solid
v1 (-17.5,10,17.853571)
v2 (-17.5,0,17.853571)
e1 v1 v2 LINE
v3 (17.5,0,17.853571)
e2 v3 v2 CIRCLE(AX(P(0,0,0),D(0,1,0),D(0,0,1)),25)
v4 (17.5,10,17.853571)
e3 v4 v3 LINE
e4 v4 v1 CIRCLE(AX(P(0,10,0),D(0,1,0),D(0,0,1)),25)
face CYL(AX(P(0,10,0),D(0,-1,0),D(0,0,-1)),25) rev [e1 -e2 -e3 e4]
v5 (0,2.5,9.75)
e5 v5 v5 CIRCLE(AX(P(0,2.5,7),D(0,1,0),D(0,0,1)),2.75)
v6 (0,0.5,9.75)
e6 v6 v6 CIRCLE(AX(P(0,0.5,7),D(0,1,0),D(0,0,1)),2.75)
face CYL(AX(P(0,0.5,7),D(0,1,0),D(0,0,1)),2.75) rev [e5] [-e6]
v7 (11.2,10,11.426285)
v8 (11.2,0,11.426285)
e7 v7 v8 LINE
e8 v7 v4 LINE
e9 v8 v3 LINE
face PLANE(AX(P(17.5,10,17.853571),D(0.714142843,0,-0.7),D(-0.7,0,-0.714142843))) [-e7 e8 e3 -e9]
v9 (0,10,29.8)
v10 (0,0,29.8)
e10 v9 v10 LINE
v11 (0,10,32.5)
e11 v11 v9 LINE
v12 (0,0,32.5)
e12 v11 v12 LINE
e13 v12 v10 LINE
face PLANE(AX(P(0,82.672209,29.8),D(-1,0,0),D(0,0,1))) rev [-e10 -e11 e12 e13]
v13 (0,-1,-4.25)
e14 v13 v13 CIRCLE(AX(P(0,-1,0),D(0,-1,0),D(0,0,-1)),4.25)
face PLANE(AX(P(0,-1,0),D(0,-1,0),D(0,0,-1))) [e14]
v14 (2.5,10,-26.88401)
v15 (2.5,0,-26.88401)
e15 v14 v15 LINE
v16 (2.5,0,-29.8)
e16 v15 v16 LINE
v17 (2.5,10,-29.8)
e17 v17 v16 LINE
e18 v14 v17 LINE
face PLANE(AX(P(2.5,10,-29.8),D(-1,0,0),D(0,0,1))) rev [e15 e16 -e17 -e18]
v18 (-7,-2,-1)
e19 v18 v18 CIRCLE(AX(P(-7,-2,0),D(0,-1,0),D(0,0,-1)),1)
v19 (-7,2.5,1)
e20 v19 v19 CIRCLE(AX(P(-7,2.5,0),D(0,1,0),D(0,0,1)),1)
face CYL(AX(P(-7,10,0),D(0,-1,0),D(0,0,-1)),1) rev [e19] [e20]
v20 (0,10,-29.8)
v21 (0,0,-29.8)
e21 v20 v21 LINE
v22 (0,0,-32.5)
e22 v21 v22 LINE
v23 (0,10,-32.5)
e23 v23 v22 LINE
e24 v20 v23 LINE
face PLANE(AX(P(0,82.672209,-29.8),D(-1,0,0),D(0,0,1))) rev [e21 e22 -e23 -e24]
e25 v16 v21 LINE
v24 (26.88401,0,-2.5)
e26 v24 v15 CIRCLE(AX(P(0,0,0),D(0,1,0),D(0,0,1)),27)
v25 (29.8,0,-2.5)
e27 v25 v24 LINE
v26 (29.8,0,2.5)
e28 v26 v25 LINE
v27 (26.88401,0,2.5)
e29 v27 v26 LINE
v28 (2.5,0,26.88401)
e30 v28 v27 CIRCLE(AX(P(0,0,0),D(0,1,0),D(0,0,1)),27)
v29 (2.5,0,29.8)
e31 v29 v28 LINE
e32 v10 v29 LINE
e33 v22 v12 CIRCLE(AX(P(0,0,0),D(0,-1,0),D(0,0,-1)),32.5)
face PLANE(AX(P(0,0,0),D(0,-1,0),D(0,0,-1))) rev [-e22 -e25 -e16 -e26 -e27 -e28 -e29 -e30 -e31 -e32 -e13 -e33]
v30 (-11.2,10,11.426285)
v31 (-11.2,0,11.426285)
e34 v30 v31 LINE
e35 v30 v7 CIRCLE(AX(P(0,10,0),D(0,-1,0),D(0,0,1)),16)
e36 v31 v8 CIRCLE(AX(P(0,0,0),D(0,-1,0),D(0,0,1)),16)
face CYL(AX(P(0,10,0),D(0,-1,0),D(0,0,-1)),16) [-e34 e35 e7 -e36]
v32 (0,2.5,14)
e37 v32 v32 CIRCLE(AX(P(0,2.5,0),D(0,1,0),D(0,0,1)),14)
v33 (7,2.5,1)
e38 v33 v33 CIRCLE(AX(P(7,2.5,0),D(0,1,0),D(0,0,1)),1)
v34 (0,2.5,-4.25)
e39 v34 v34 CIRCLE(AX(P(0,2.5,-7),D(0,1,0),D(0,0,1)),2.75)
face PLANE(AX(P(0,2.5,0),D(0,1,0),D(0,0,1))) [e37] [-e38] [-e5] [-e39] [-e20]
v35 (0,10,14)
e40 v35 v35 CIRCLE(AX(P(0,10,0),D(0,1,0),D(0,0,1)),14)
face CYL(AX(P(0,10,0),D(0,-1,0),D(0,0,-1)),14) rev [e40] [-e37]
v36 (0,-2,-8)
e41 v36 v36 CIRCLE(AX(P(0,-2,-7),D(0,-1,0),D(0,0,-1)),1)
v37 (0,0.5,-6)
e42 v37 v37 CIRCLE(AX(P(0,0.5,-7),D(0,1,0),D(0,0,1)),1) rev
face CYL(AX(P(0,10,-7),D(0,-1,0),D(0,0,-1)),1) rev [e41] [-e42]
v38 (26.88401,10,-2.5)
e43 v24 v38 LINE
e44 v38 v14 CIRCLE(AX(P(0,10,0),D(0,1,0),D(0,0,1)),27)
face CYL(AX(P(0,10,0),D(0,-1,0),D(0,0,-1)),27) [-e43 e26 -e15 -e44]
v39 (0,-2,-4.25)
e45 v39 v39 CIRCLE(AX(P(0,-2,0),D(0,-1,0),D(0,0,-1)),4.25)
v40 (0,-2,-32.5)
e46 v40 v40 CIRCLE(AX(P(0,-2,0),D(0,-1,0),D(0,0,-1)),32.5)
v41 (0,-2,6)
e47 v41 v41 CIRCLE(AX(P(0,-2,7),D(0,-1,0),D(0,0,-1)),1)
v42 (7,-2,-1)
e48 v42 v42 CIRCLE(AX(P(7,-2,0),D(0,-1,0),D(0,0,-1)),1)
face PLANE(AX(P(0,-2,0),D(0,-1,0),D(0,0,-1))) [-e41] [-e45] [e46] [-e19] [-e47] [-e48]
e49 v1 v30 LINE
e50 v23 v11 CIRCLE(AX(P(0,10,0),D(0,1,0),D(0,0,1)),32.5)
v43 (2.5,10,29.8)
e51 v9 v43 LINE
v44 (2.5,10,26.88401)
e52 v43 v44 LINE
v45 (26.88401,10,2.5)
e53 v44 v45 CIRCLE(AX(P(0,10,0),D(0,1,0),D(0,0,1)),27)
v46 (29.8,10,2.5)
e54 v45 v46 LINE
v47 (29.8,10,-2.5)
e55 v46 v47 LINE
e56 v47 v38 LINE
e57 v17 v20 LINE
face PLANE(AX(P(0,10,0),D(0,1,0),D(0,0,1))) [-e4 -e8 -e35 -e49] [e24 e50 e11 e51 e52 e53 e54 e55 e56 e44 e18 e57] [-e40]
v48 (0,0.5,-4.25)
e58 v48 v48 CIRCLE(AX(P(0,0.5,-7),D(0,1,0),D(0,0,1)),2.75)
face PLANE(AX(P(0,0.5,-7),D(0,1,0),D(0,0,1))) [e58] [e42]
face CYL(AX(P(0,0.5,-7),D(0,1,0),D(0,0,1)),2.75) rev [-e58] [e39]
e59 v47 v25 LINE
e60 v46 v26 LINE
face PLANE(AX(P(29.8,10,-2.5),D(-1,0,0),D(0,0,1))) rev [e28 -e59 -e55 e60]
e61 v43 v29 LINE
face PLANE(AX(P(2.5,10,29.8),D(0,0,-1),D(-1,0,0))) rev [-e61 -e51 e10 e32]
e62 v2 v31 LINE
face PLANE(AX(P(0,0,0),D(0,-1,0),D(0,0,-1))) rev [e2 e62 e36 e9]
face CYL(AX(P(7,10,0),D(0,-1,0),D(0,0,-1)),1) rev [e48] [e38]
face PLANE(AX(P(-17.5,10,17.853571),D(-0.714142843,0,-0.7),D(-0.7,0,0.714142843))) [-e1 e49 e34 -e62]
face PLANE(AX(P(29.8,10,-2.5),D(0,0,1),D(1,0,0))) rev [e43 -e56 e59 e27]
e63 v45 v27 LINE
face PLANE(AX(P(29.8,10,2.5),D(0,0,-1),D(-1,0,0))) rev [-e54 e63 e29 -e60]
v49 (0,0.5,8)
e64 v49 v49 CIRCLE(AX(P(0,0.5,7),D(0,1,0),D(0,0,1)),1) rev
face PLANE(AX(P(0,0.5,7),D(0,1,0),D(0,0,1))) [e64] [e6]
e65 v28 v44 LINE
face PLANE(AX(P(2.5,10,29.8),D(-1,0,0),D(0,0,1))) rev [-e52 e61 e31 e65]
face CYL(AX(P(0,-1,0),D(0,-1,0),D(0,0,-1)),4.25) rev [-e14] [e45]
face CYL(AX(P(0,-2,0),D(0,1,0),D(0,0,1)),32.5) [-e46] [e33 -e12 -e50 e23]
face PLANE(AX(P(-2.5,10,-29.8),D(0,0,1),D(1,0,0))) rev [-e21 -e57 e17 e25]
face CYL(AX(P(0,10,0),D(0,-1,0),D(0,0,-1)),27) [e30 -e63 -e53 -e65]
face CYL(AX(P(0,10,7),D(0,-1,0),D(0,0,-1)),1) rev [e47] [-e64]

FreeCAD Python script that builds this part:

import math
import FreeCAD as App
import Part
import Sketcher

V = App.Vector

doc = App.newDocument("Part")
body = doc.addObject("PartDesign::Body", "Body")

# Sketch on XZ plane
sketch1 = body.newObject("Sketcher::SketchObject", "Sketch")
sketch1.AttachmentSupport = (doc.getObject("XZ_Plane"), [""])
sketch1.MapMode = "FlatFace"
sketch1.addGeometry([
    Part.Circle(V(0, 0, 0), V(0, 0, 1), 27),  # 0
    Part.LineSegment(V(-11.2, 11.426285, 0), V(-17.5, 17.853571, 0)),  # 1
    Part.ArcOfCircle(Part.Circle(V(0, 0, 0), V(0, 0, 1), 25), math.radians(134.427004), math.radians(405.572996)),  # 2
    Part.LineSegment(V(17.5, 17.853571, 0), V(11.2, 11.426285, 0)),  # 3
    Part.ArcOfCircle(Part.Circle(V(0, 0, 0), V(0, 0, 1), 16), math.radians(134.427004), math.radians(405.572996)),  # 4
    Part.Circle(V(0, 0, 0), V(0, 0, 1), 14),  # 5
], False)
sketch1.addConstraint([
    Sketcher.Constraint("Coincident", 1, 2, 2, 1),
    Sketcher.Constraint("Coincident", 2, 2, 3, 1),
    Sketcher.Constraint("Coincident", 3, 2, 4, 2),
    Sketcher.Constraint("Coincident", 4, 1, 1, 1),
    Sketcher.Constraint("Coincident", 0, 3, -1, 1),
    Sketcher.Constraint("Coincident", 2, 3, -1, 1),
    Sketcher.Constraint("Coincident", 4, 3, -1, 1),
    Sketcher.Constraint("Coincident", 5, 3, -1, 1),
    Sketcher.Constraint("Horizontal", 1, 2, 2, 2),
    Sketcher.Constraint("Horizontal", 3, 2, 4, 1),
    Sketcher.Constraint("Diameter", 0, 54.0),
    Sketcher.Constraint("Diameter", 5, 28.0),
    Sketcher.Constraint("Radius", 2, 25.0),
    Sketcher.Constraint("Radius", 4, 16.0),
    Sketcher.Constraint("DistanceX", 1, 2, 2, 2, 35.0),
    Sketcher.Constraint("DistanceX", -1, 1, 3, 2, 11.2),
])
pad1 = body.newObject("PartDesign::Pad", "Pad")
pad1.Profile = sketch1
pad1.Length = 10
pad1.Reversed = True

# Sketch on XZ plane
sketch2 = body.newObject("Sketcher::SketchObject", "Sketch001")
sketch2.AttachmentSupport = (doc.getObject("XZ_Plane"), [""])
sketch2.MapMode = "FlatFace"
sketch2.addGeometry(Part.Circle(V(0, 0, 0), V(0, 0, 1), 32.5), False)
sketch2.addConstraint([
    Sketcher.Constraint("Coincident", 0, 3, -1, 1),
    Sketcher.Constraint("Diameter", 0, 65.0),
])
pad2 = body.newObject("PartDesign::Pad", "Pad001")
pad2.Profile = sketch2
pad2.Length = 2

# Sketch on XZ plane
sketch3 = body.newObject("Sketcher::SketchObject", "Sketch002")
sketch3.AttachmentSupport = (doc.getObject("XZ_Plane"), [""])
sketch3.MapMode = "FlatFace"
sketch3.addGeometry([
    Part.LineSegment(V(-2.5, -29.8, 0), V(-2.5, -25.403227, 0)),  # 0
    Part.LineSegment(V(-2.5, -25.403227, 0), V(2.5, -25.403227, 0)),  # 1
    Part.LineSegment(V(2.5, -25.403227, 0), V(2.5, -29.8, 0)),  # 2
    Part.LineSegment(V(2.5, -29.8, 0), V(-2.5, -29.8, 0)),  # 3
    Part.LineSegment(V(25.403227, -2.5, 0), V(25.403227, 2.5, 0)),  # 4
    Part.LineSegment(V(25.403227, 2.5, 0), V(29.8, 2.5, 0)),  # 5
    Part.LineSegment(V(29.8, 2.5, 0), V(29.8, -2.5, 0)),  # 6
    Part.LineSegment(V(29.8, -2.5, 0), V(25.403227, -2.5, 0)),  # 7
    Part.LineSegment(V(-2.5, 25.403227, 0), V(-2.5, 29.8, 0)),  # 8
    Part.LineSegment(V(-2.5, 29.8, 0), V(2.5, 29.8, 0)),  # 9
    Part.LineSegment(V(2.5, 29.8, 0), V(2.5, 25.403227, 0)),  # 10
    Part.LineSegment(V(2.5, 25.403227, 0), V(-2.5, 25.403227, 0)),  # 11
    Part.LineSegment(V(-29.8, -2.5, 0), V(-29.8, 2.5, 0)),  # 12
    Part.LineSegment(V(-29.8, 2.5, 0), V(-25.403227, 2.5, 0)),  # 13
    Part.LineSegment(V(-25.403227, 2.5, 0), V(-25.403227, -2.5, 0)),  # 14
    Part.LineSegment(V(-25.403227, -2.5, 0), V(-29.8, -2.5, 0)),  # 15
], False)
sketch3.addConstraint([
    Sketcher.Constraint("Coincident", 0, 2, 1, 1),
    Sketcher.Constraint("Coincident", 1, 2, 2, 1),
    Sketcher.Constraint("Coincident", 2, 2, 3, 1),
    Sketcher.Constraint("Coincident", 3, 2, 0, 1),
    Sketcher.Constraint("Coincident", 4, 2, 5, 1),
    Sketcher.Constraint("Coincident", 5, 2, 6, 1),
    Sketcher.Constraint("Coincident", 6, 2, 7, 1),
    Sketcher.Constraint("Coincident", 7, 2, 4, 1),
    Sketcher.Constraint("Coincident", 8, 2, 9, 1),
    Sketcher.Constraint("Coincident", 9, 2, 10, 1),
    Sketcher.Constraint("Coincident", 10, 2, 11, 1),
    Sketcher.Constraint("Coincident", 11, 2, 8, 1),
    Sketcher.Constraint("Coincident", 12, 2, 13, 1),
    Sketcher.Constraint("Coincident", 13, 2, 14, 1),
    Sketcher.Constraint("Coincident", 14, 2, 15, 1),
    Sketcher.Constraint("Coincident", 15, 2, 12, 1),
    Sketcher.Constraint("Vertical", 0),
    Sketcher.Constraint("Horizontal", 1),
    Sketcher.Constraint("Vertical", 2),
    Sketcher.Constraint("Horizontal", 3),
    Sketcher.Constraint("Vertical", 4),
    Sketcher.Constraint("Horizontal", 5),
    Sketcher.Constraint("Vertical", 6),
    Sketcher.Constraint("Horizontal", 7),
    Sketcher.Constraint("Vertical", 8),
    Sketcher.Constraint("Horizontal", 9),
    Sketcher.Constraint("Vertical", 10),
    Sketcher.Constraint("Horizontal", 11),
    Sketcher.Constraint("Vertical", 12),
    Sketcher.Constraint("Horizontal", 13),
    Sketcher.Constraint("Vertical", 14),
    Sketcher.Constraint("Horizontal", 15),
    Sketcher.Constraint("Symmetric", 2, 2, 8, 2, -1, 1),
    Sketcher.Constraint("Symmetric", 0, 2, 10, 2, -1, 1),
    Sketcher.Constraint("Symmetric", 6, 2, 12, 2, -1, 1),
    Sketcher.Constraint("Symmetric", 4, 2, 14, 2, -1, 1),
    Sketcher.Constraint("Horizontal", 5, 2, 12, 2),
    Sketcher.Constraint("Vertical", 3, 2, 8, 2),
    Sketcher.Constraint("Equal", 15, 0),
    Sketcher.Constraint("Equal", 11, 4),
    Sketcher.Constraint("DistanceX", 1, 1, 1, 2, 5.0),
    Sketcher.Constraint("DistanceY", 2, 2, -1, 1, 29.8),
    Sketcher.Constraint("DistanceX", -1, 1, 5, 2, 29.8),
    Sketcher.Constraint("DistanceX", 5, 1, 5, 2, 4.396773),
])
pad3 = body.newObject("PartDesign::Pad", "Pad002")
pad3.Profile = sketch3
pad3.Length = 10
pad3.Reversed = True

# Sketch on XZ plane
sketch4 = body.newObject("Sketcher::SketchObject", "Sketch003")
sketch4.AttachmentSupport = (doc.getObject("XZ_Plane"), [""])
sketch4.MapMode = "FlatFace"
sketch4.addGeometry([
    Part.LineSegment(V(0, -29.8, 0), V(0, -32.5, 0)),  # 0
    Part.ArcOfCircle(Part.Circle(V(0, 0, 0), V(0, 0, 1), 32.5), math.radians(90), math.radians(270)),  # 1
    Part.LineSegment(V(0, 32.5, 0), V(0, 29.8, 0)),  # 2
    Part.LineSegment(V(0, 29.8, 0), V(-2.5, 29.8, 0)),  # 3
    Part.LineSegment(V(-2.5, 29.8, 0), V(-2.5, 26.88401, 0)),  # 4
    Part.ArcOfCircle(Part.Circle(V(0, 0, 0), V(0, 0, 1), 27), math.radians(95.312775), math.radians(174.687225)),  # 5
    Part.LineSegment(V(-26.88401, 2.5, 0), V(-29.8, 2.5, 0)),  # 6
    Part.LineSegment(V(-29.8, 2.5, 0), V(-29.8, -2.5, 0)),  # 7
    Part.LineSegment(V(-29.8, -2.5, 0), V(-26.88401, -2.5, 0)),  # 8
    Part.ArcOfCircle(Part.Circle(V(0, 0, 0), V(0, 0, 1), 27), math.radians(-174.687225), math.radians(-95.312775)),  # 9
    Part.LineSegment(V(-2.5, -26.88401, 0), V(-2.5, -29.8, 0)),  # 10
    Part.LineSegment(V(-2.5, -29.8, 0), V(0, -29.8, 0)),  # 11
], False)
sketch4.addConstraint([
    Sketcher.Constraint("Coincident", 0, 2, 1, 2),
    Sketcher.Constraint("Coincident", 1, 1, 2, 1),
    Sketcher.Constraint("Coincident", 2, 2, 3, 1),
    Sketcher.Constraint("Coincident", 3, 2, 4, 1),
    Sketcher.Constraint("Coincident", 4, 2, 5, 1),
    Sketcher.Constraint("Coincident", 5, 2, 6, 1),
    Sketcher.Constraint("Coincident", 6, 2, 7, 1),
    Sketcher.Constraint("Coincident", 7, 2, 8, 1),
    Sketcher.Constraint("Coincident", 8, 2, 9, 1),
    Sketcher.Constraint("Coincident", 9, 2, 10, 1),
    Sketcher.Constraint("Coincident", 10, 2, 11, 1),
    Sketcher.Constraint("Coincident", 11, 2, 0, 1),
    Sketcher.Constraint("Vertical", 0),
    Sketcher.Constraint("Vertical", 2),
    Sketcher.Constraint("Horizontal", 3),
    Sketcher.Constraint("Vertical", 4),
    Sketcher.Constraint("Horizontal", 6),
    Sketcher.Constraint("Vertical", 7),
    Sketcher.Constraint("Horizontal", 8),
    Sketcher.Constraint("Vertical", 10),
    Sketcher.Constraint("Horizontal", 11),
    Sketcher.Constraint("Coincident", 1, 3, -1, 1),
    Sketcher.Constraint("Coincident", 5, 3, -1, 1),
    Sketcher.Constraint("Coincident", 9, 3, -1, 1),
    Sketcher.Constraint("Equal", 5, 9),
    Sketcher.Constraint("Symmetric", 2, 2, 11, 2, -1, 1),
    Sketcher.Constraint("PointOnObject", 0, 2, -2),
    Sketcher.Constraint("Vertical", 5, 2, 8, 2),
    Sketcher.Constraint("Vertical", 4, 2, 9, 2),
    Sketcher.Constraint("Equal", 8, 4),
    Sketcher.Constraint("Radius", 5, 27.0),
    Sketcher.Constraint("Radius", 1, 32.5),
    Sketcher.Constraint("DistanceY", 7, 2, 7, 1, 5.0),
    Sketcher.Constraint("DistanceX", 3, 2, 3, 1, 2.5),
    Sketcher.Constraint("DistanceY", 0, 2, 0, 1, 2.7),
])
pad4 = body.newObject("PartDesign::Pad", "Pad003")
pad4.Profile = sketch4
pad4.Length = 10
pad4.Reversed = True

# Sketch on XZ plane
sketch5 = body.newObject("Sketcher::SketchObject", "Sketch004")
sketch5.AttachmentSupport = (doc.getObject("XZ_Plane"), [""])
sketch5.MapMode = "FlatFace"
sketch5.addGeometry(Part.Circle(V(0, 0, 0), V(0, 0, 1), 14), False)
sketch5.addConstraint([
    Sketcher.Constraint("Coincident", 0, 3, -1, 1),
    Sketcher.Constraint("Diameter", 0, 28.0),
])
pad5 = body.newObject("PartDesign::Pad", "Pad004")
pad5.Profile = sketch5
pad5.Length = 2.5
pad5.Reversed = True

# Sketch on XZ plane
sketch6 = body.newObject("Sketcher::SketchObject", "Sketch005")
sketch6.AttachmentSupport = (doc.getObject("XZ_Plane"), [""])
sketch6.MapMode = "FlatFace"
sketch6.AttachmentOffset = App.Placement(V(0, 0, 2), App.Rotation())
sketch6.addGeometry([
    Part.Circle(V(0, -7, 0), V(0, 0, 1), 1),
    Part.Circle(V(-7, 0, 0), V(0, 0, 1), 1),
    Part.Circle(V(0, 7, 0), V(0, 0, 1), 1),
    Part.Circle(V(7, 0, 0), V(0, 0, 1), 1),
], False)
sketch6.addConstraint([
    Sketcher.Constraint("Equal", 0, 1),
    Sketcher.Constraint("Equal", 1, 2),
    Sketcher.Constraint("Equal", 2, 3),
    Sketcher.Constraint("Symmetric", 0, 3, 2, 3, -1, 1),
    Sketcher.Constraint("Symmetric", 1, 3, 3, 3, -1, 1),
    Sketcher.Constraint("PointOnObject", 0, 3, -2),
    Sketcher.Constraint("PointOnObject", 1, 3, -1),
    Sketcher.Constraint("Diameter", 0, 2.0),
    Sketcher.Constraint("DistanceY", 0, 3, -1, 1, 7.0),
    Sketcher.Constraint("DistanceX", 1, 3, -1, 1, 7.0),
])
pocket1 = body.newObject("PartDesign::Pocket", "Pocket")
pocket1.Profile = sketch6
pocket1.Type = "ThroughAll"
pocket1.Midplane = True

# Sketch on XZ plane
sketch7 = body.newObject("Sketcher::SketchObject", "Sketch006")
sketch7.AttachmentSupport = (doc.getObject("XZ_Plane"), [""])
sketch7.MapMode = "FlatFace"
sketch7.AttachmentOffset = App.Placement(V(0, 0, -2.5), App.Rotation())
sketch7.addGeometry([
    Part.Circle(V(0, -7, 0), V(0, 0, 1), 2.75),
    Part.Circle(V(0, 7, 0), V(0, 0, 1), 2.75),
], False)
sketch7.addConstraint([
    Sketcher.Constraint("Equal", 0, 1),
    Sketcher.Constraint("Symmetric", 0, 3, 1, 3, -1, 1),
    Sketcher.Constraint("PointOnObject", 0, 3, -2),
    Sketcher.Constraint("Diameter", 0, 5.5),
    Sketcher.Constraint("DistanceY", 0, 3, -1, 1, 7.0),
])
pocket2 = body.newObject("PartDesign::Pocket", "Pocket001")
pocket2.Profile = sketch7
pocket2.Length = 2
pocket2.Reversed = True

# Sketch on XZ plane
sketch8 = body.newObject("Sketcher::SketchObject", "Sketch007")
sketch8.AttachmentSupport = (doc.getObject("XZ_Plane"), [""])
sketch8.MapMode = "FlatFace"
sketch8.AttachmentOffset = App.Placement(V(0, 0, 2), App.Rotation())
sketch8.addGeometry(Part.Circle(V(0, 0, 0), V(0, 0, 1), 4.25), False)
sketch8.addConstraint([
    Sketcher.Constraint("Coincident", 0, 3, -1, 1),
    Sketcher.Constraint("Diameter", 0, 8.5),
])
pocket3 = body.newObject("PartDesign::Pocket", "Pocket002")
pocket3.Profile = sketch8
pocket3.Length = 1

doc.recompute()
